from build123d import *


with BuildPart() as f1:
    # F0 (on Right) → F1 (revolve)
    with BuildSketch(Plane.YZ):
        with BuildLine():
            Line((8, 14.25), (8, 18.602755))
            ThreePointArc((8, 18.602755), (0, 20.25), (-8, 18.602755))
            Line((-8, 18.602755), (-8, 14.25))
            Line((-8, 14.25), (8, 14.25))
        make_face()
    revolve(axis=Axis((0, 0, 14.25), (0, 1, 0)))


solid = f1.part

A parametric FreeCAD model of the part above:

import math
import FreeCAD as App
import Part
import Sketcher
Q = App.Units.Quantity

doc = App.newDocument("Part")
params = doc.addObject("Spreadsheet::Sheet", "Params")
for row, (alias, value) in enumerate([
    ("sketch1_width", "16 mm"),
    ("sketch1_radius", "20.249998 mm"),
    ("revolution_angle", "360 deg"),
], start=1):
    params.set(f"A{row}", alias)
    params.set(f"B{row}", "=" + value)
    params.setAlias(f"B{row}", alias)

body = doc.addObject("PartDesign::Body", "Body")

# Sketch on YZ plane
sketch1 = doc.addObject("Sketcher::SketchObject", "Sketch")
body.addObject(sketch1)
sketch1.AttachmentSupport = (doc.YZ_Plane, [""])
sketch1.MapMode = "FlatFace"
sketch1.addGeometry([
    Part.LineSegment(App.Vector(8, 14.2, 0), App.Vector(8, 18.6, 0)),
    Part.ArcOfCircle(Part.Circle(App.Vector(0, 0, 0), App.Vector(0, 0, 1), 20.2), math.radians(67), math.radians(113)),
    Part.LineSegment(App.Vector(-8, 18.6, 0), App.Vector(-8, 14.2, 0)),
    Part.LineSegment(App.Vector(-8, 14.2, 0), App.Vector(8, 14.2, 0)),
], False)
sketch1.addGeometry(Part.LineSegment(App.Vector(-8, 14.2, 0), App.Vector(8, 14.2, 0)), True)  # axis
sketch1.addConstraint([
    Sketcher.Constraint("Coincident", 0, 2, 1, 1),
    Sketcher.Constraint("Coincident", 1, 2, 2, 1),
    Sketcher.Constraint("Coincident", 2, 2, 3, 1),
    Sketcher.Constraint("Coincident", 3, 2, 0, 1),
    Sketcher.Constraint("Vertical", 0),
    Sketcher.Constraint("Vertical", 2),
    Sketcher.Constraint("Horizontal", 3),
    Sketcher.Constraint("Horizontal", 4),
    Sketcher.Constraint("Coincident", 1, 3, -1, 1),
    Sketcher.Constraint("Coincident", 4, 1, 2, 2),
    Sketcher.Constraint("Horizontal", 0, 2, 1, 2),
    Sketcher.Constraint("Vertical", 0, 2, 4, 2),
    Sketcher.Constraint("DistanceX", 3, 1, 3, 2, Q("16 mm")),
    Sketcher.Constraint("Radius", 1, Q("20.249998 mm")),
    Sketcher.Constraint("DistanceY", -1, 1, 2, 2, Q("14.25 mm")),
])
sketch1.setExpression("Constraints[12]", "Params.sketch1_width")
sketch1.setExpression("Constraints[13]", "Params.sketch1_radius")
revolution = doc.addObject("PartDesign::Revolution", "Revolution")
body.addObject(revolution)
revolution.Profile = sketch1
revolution.ReferenceAxis = (sketch1, ["Axis0"])
revolution.setExpression("Angle", "Params.revolution_angle")

doc.recompute()
